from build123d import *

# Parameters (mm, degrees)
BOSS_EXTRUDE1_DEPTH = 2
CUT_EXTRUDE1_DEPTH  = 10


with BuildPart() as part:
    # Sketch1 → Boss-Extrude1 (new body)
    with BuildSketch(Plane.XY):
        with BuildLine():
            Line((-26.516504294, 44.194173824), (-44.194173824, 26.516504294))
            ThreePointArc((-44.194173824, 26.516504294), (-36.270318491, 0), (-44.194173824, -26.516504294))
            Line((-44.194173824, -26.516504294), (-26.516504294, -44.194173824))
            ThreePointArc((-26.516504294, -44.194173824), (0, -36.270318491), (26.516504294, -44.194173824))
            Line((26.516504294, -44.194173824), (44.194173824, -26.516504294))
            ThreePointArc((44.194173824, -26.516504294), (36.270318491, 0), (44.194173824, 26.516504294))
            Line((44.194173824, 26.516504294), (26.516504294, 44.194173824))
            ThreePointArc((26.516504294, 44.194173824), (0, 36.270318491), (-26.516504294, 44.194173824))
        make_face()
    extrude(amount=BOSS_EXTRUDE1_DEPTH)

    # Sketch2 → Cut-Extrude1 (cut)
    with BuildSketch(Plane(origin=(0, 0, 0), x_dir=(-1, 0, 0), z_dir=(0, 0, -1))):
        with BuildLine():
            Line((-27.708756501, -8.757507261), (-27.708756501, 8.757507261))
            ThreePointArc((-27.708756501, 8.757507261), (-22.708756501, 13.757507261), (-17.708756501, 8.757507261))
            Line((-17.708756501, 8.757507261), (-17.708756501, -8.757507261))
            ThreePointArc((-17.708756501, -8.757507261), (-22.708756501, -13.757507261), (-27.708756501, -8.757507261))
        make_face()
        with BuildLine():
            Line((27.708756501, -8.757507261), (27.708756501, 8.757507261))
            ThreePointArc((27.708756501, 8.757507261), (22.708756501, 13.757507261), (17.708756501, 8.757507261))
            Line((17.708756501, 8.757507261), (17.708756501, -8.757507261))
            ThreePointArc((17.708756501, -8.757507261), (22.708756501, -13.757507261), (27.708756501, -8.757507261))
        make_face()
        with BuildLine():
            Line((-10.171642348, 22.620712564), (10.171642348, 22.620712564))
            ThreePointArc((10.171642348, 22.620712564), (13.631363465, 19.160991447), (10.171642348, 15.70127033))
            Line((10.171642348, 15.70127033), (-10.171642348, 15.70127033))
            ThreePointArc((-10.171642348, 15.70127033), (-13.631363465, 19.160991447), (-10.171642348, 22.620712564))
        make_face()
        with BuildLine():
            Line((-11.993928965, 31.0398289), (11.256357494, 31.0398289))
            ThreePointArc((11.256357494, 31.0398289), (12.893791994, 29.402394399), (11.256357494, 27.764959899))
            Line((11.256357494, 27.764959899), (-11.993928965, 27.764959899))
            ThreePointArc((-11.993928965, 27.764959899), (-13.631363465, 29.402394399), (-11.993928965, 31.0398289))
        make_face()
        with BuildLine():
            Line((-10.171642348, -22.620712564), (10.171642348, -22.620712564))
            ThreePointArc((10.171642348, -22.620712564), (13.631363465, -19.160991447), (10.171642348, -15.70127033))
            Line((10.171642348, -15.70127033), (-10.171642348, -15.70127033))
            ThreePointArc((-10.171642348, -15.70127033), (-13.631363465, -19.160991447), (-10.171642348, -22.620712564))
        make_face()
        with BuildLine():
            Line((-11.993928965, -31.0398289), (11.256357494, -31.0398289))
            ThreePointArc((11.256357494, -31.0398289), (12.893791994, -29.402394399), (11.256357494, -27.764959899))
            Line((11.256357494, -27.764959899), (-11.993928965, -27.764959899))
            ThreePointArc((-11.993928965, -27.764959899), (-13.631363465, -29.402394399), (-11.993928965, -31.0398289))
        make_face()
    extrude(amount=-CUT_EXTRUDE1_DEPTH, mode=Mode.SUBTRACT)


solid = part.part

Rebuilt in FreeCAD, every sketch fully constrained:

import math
import FreeCAD as App
import Part
import Sketcher
Q = App.Units.Quantity

doc = App.newDocument("Part")
body = doc.addObject("PartDesign::Body", "Body")

# Sketch on XY plane
sketch1 = doc.addObject("Sketcher::SketchObject", "Sketch")
body.addObject(sketch1)
sketch1.AttachmentSupport = (doc.XY_Plane, [""])
sketch1.MapMode = "FlatFace"
sketch1.addGeometry([
    Part.LineSegment(App.Vector(-26.516504, 44.194174, 0), App.Vector(-44.194174, 26.516504, 0)),  # 0
    Part.ArcOfCircle(Part.Circle(App.Vector(-84.599853, 0, 0), App.Vector(0, 0, 1), 48.329535), math.radians(-33.275163), math.radians(33.275163)),  # 1
    Part.LineSegment(App.Vector(-44.194174, -26.516504, 0), App.Vector(-26.516504, -44.194174, 0)),  # 2
    Part.ArcOfCircle(Part.Circle(App.Vector(0, -84.599853, 0), App.Vector(0, 0, 1), 48.329535), math.radians(56.724837), math.radians(123.275163)),  # 3
    Part.LineSegment(App.Vector(26.516504, -44.194174, 0), App.Vector(44.194174, -26.516504, 0)),  # 4
    Part.ArcOfCircle(Part.Circle(App.Vector(84.599853, 0, 0), App.Vector(0, 0, 1), 48.329535), math.radians(146.724837), math.radians(213.275163)),  # 5
    Part.LineSegment(App.Vector(44.194174, 26.516504, 0), App.Vector(26.516504, 44.194174, 0)),  # 6
    Part.ArcOfCircle(Part.Circle(App.Vector(0, 84.599853, 0), App.Vector(0, 0, 1), 48.329535), math.radians(-123.275163), math.radians(-56.724837)),  # 7
], False)
sketch1.addConstraint([
    Sketcher.Constraint("Coincident", 0, 2, 1, 2),
    Sketcher.Constraint("Coincident", 1, 1, 2, 1),
    Sketcher.Constraint("Coincident", 2, 2, 3, 2),
    Sketcher.Constraint("Coincident", 3, 1, 4, 1),
    Sketcher.Constraint("Coincident", 4, 2, 5, 2),
    Sketcher.Constraint("Coincident", 5, 1, 6, 1),
    Sketcher.Constraint("Coincident", 6, 2, 7, 2),
    Sketcher.Constraint("Coincident", 7, 1, 0, 1),
    Sketcher.Constraint("Equal", 1, 3),
    Sketcher.Constraint("Equal", 3, 5),
    Sketcher.Constraint("Equal", 5, 7),
    Sketcher.Constraint("Symmetric", 1, 3, 5, 3, -1, 1),
    Sketcher.Constraint("Symmetric", 3, 3, 7, 3, -1, 1),
    Sketcher.Constraint("Symmetric", 2, 2, 3, 1, -2),
    Sketcher.Constraint("Symmetric", 1, 1, 4, 2, -2),
    Sketcher.Constraint("Perpendicular", 0, 2),
    Sketcher.Constraint("Perpendicular", 2, 4),
    Sketcher.Constraint("Perpendicular", 4, 6),
    Sketcher.Constraint("Horizontal", 0, 2, 5, 1),
    Sketcher.Constraint("Vertical", 0, 2, 1, 1),
    Sketcher.Constraint("Distance", 0, Q("25 mm")),
    Sketcher.Constraint("Radius", 1, Q("48.329535 mm")),
    Sketcher.Constraint("DistanceX", 1, 3, 0, 2, Q("40.405679 mm")),
    Sketcher.Constraint("DistanceY", 0, 2, 7, 3, Q("58.083349 mm")),
])
pad1 = doc.addObject("PartDesign::Pad", "Pad")
body.addObject(pad1)
pad1.Profile = sketch1
pad1.Length = 2

# Sketch on XY plane
sketch2 = doc.addObject("Sketcher::SketchObject", "Sketch001")
body.addObject(sketch2)
sketch2.AttachmentSupport = (doc.XY_Plane, [""])
sketch2.MapMode = "FlatFace"
sketch2.addGeometry([
    Part.LineSegment(App.Vector(27.708757, 8.757507, 0), App.Vector(27.708757, -8.757507, 0)),  # 0
    Part.ArcOfCircle(Part.Circle(App.Vector(22.708757, -8.757507, 0), App.Vector(0, 0, 1), 5), math.radians(180), math.radians(360)),  # 1
    Part.LineSegment(App.Vector(17.708757, -8.757507, 0), App.Vector(17.708757, 8.757507, 0)),  # 2
    Part.ArcOfCircle(Part.Circle(App.Vector(22.708757, 8.757507, 0), App.Vector(0, 0, 1), 5), math.radians(0), math.radians(180)),  # 3
    Part.LineSegment(App.Vector(-27.708757, -8.757507, 0), App.Vector(-27.708757, 8.757507, 0)),  # 4
    Part.ArcOfCircle(Part.Circle(App.Vector(-22.708757, 8.757507, 0), App.Vector(0, 0, 1), 5), math.radians(0), math.radians(180)),  # 5
    Part.LineSegment(App.Vector(-17.708757, 8.757507, 0), App.Vector(-17.708757, -8.757507, 0)),  # 6
    Part.ArcOfCircle(Part.Circle(App.Vector(-22.708757, -8.757507, 0), App.Vector(0, 0, 1), 5), math.radians(180), math.radians(360)),  # 7
    Part.LineSegment(App.Vector(-10.171642, 22.620713, 0), App.Vector(10.171642, 22.620713, 0)),  # 8
    Part.ArcOfCircle(Part.Circle(App.Vector(10.171642, 19.160991, 0), App.Vector(0, 0, 1), 3.459721), math.radians(-90), math.radians(90)),  # 9
    Part.LineSegment(App.Vector(10.171642, 15.70127, 0), App.Vector(-10.171642, 15.70127, 0)),  # 10
    Part.ArcOfCircle(Part.Circle(App.Vector(-10.171642, 19.160991, 0), App.Vector(0, 0, 1), 3.459721), math.radians(90), math.radians(270)),  # 11
    Part.LineSegment(App.Vector(-11.256357, 31.039829, 0), App.Vector(11.993929, 31.039829, 0)),  # 12
    Part.ArcOfCircle(Part.Circle(App.Vector(11.993929, 29.402394, 0), App.Vector(0, 0, 1), 1.637434), math.radians(-90), math.radians(90)),  # 13
    Part.LineSegment(App.Vector(11.993929, 27.76496, 0), App.Vector(-11.256357, 27.76496, 0)),  # 14
    Part.ArcOfCircle(Part.Circle(App.Vector(-11.256357, 29.402394, 0), App.Vector(0, 0, 1), 1.637434), math.radians(90), math.radians(270)),  # 15
    Part.LineSegment(App.Vector(10.171642, -22.620713, 0), App.Vector(-10.171642, -22.620713, 0)),  # 16
    Part.ArcOfCircle(Part.Circle(App.Vector(-10.171642, -19.160991, 0), App.Vector(0, 0, 1), 3.459721), math.radians(90), math.radians(270)),  # 17
    Part.LineSegment(App.Vector(-10.171642, -15.70127, 0), App.Vector(10.171642, -15.70127, 0)),  # 18
    Part.ArcOfCircle(Part.Circle(App.Vector(10.171642, -19.160991, 0), App.Vector(0, 0, 1), 3.459721), math.radians(-90), math.radians(90)),  # 19
    Part.LineSegment(App.Vector(11.993929, -31.039829, 0), App.Vector(-11.256357, -31.039829, 0)),  # 20
    Part.ArcOfCircle(Part.Circle(App.Vector(-11.256357, -29.402394, 0), App.Vector(0, 0, 1), 1.637434), math.radians(90), math.radians(270)),  # 21
    Part.LineSegment(App.Vector(-11.256357, -27.76496, 0), App.Vector(11.993929, -27.76496, 0)),  # 22
    Part.ArcOfCircle(Part.Circle(App.Vector(11.993929, -29.402394, 0), App.Vector(0, 0, 1), 1.637434), math.radians(-90), math.radians(90)),  # 23
], False)
sketch2.addConstraint([
    Sketcher.Constraint("Tangent", 0, 2, 1, 2),
    Sketcher.Constraint("Tangent", 1, 1, 2, 1),
    Sketcher.Constraint("Tangent", 2, 2, 3, 2),
    Sketcher.Constraint("Tangent", 3, 1, 0, 1),
    Sketcher.Constraint("Tangent", 4, 2, 5, 2),
    Sketcher.Constraint("Tangent", 5, 1, 6, 1),
    Sketcher.Constraint("Tangent", 6, 2, 7, 2),
    Sketcher.Constraint("Tangent", 7, 1, 4, 1),
    Sketcher.Constraint("Tangent", 8, 2, 9, 2),
    Sketcher.Constraint("Tangent", 9, 1, 10, 1),
    Sketcher.Constraint("Tangent", 10, 2, 11, 2),
    Sketcher.Constraint("Tangent", 11, 1, 8, 1),
    Sketcher.Constraint("Tangent", 12, 2, 13, 2),
    Sketcher.Constraint("Tangent", 13, 1, 14, 1),
    Sketcher.Constraint("Tangent", 14, 2, 15, 2),
    Sketcher.Constraint("Tangent", 15, 1, 12, 1),
    Sketcher.Constraint("Tangent", 16, 2, 17, 2),
    Sketcher.Constraint("Tangent", 17, 1, 18, 1),
    Sketcher.Constraint("Tangent", 18, 2, 19, 2),
    Sketcher.Constraint("Tangent", 19, 1, 16, 1),
    Sketcher.Constraint("Tangent", 20, 2, 21, 2),
    Sketcher.Constraint("Tangent", 21, 1, 22, 1),
    Sketcher.Constraint("Tangent", 22, 2, 23, 2),
    Sketcher.Constraint("Tangent", 23, 1, 20, 1),
    Sketcher.Constraint("Vertical", 0),
    Sketcher.Constraint("Vertical", 2),
    Sketcher.Constraint("Vertical", 4),
    Sketcher.Constraint("Vertical", 6),
    Sketcher.Constraint("Horizontal", 8),
    Sketcher.Constraint("Horizontal", 10),
    Sketcher.Constraint("Horizontal", 12),
    Sketcher.Constraint("Horizontal", 14),
    Sketcher.Constraint("Horizontal", 16),
    Sketcher.Constraint("Horizontal", 18),
    Sketcher.Constraint("Horizontal", 20),
    Sketcher.Constraint("Horizontal", 22),
    Sketcher.Constraint("Equal", 3, 5),
    Sketcher.Constraint("Equal", 11, 17),
    Sketcher.Constraint("Equal", 15, 21),
    Sketcher.Constraint("Symmetric", 1, 3, 5, 3, -1, 1),
    Sketcher.Constraint("Symmetric", 9, 3, 17, 3, -1, 1),
    Sketcher.Constraint("Symmetric", 15, 3, 21, 3, -1),
    Sketcher.Constraint("Horizontal", 3, 3, 5, 3),
    Sketcher.Constraint("Horizontal", 1, 3, 7, 3),
    Sketcher.Constraint("Vertical", 11, 3, 17, 3),
    Sketcher.Constraint("Vertical", 9, 3, 19, 3),
    Sketcher.Constraint("Vertical", 13, 3, 23, 3),
    Sketcher.Constraint("Radius", 1, Q("5 mm")),
    Sketcher.Constraint("Radius", 9, Q("3.459721 mm")),
    Sketcher.Constraint("Radius", 13, Q("1.637434 mm")),
    Sketcher.Constraint("DistanceX", 15, 3, 9, 3, Q("21.428 mm")),
    Sketcher.Constraint("DistanceY", 1, 3, 9, 3, Q("27.918499 mm")),
    Sketcher.Constraint("DistanceX", 5, 3, 9, 3, Q("32.880399 mm")),
    Sketcher.Constraint("DistanceY", 1, 3, 13, 3, Q("38.159902 mm")),
    Sketcher.Constraint("DistanceX", 8, 1, 8, 2, Q("20.343285 mm")),
    Sketcher.Constraint("DistanceX", 12, 1, 12, 2, Q("23.250286 mm")),
    Sketcher.Constraint("DistanceY", 0, 2, 0, 1, Q("17.515015 mm")),
])
pocket1 = doc.addObject("PartDesign::Pocket", "Pocket")
body.addObject(pocket1)
pocket1.Profile = sketch2
pocket1.Length = 10
pocket1.Reversed = True

doc.recompute()
